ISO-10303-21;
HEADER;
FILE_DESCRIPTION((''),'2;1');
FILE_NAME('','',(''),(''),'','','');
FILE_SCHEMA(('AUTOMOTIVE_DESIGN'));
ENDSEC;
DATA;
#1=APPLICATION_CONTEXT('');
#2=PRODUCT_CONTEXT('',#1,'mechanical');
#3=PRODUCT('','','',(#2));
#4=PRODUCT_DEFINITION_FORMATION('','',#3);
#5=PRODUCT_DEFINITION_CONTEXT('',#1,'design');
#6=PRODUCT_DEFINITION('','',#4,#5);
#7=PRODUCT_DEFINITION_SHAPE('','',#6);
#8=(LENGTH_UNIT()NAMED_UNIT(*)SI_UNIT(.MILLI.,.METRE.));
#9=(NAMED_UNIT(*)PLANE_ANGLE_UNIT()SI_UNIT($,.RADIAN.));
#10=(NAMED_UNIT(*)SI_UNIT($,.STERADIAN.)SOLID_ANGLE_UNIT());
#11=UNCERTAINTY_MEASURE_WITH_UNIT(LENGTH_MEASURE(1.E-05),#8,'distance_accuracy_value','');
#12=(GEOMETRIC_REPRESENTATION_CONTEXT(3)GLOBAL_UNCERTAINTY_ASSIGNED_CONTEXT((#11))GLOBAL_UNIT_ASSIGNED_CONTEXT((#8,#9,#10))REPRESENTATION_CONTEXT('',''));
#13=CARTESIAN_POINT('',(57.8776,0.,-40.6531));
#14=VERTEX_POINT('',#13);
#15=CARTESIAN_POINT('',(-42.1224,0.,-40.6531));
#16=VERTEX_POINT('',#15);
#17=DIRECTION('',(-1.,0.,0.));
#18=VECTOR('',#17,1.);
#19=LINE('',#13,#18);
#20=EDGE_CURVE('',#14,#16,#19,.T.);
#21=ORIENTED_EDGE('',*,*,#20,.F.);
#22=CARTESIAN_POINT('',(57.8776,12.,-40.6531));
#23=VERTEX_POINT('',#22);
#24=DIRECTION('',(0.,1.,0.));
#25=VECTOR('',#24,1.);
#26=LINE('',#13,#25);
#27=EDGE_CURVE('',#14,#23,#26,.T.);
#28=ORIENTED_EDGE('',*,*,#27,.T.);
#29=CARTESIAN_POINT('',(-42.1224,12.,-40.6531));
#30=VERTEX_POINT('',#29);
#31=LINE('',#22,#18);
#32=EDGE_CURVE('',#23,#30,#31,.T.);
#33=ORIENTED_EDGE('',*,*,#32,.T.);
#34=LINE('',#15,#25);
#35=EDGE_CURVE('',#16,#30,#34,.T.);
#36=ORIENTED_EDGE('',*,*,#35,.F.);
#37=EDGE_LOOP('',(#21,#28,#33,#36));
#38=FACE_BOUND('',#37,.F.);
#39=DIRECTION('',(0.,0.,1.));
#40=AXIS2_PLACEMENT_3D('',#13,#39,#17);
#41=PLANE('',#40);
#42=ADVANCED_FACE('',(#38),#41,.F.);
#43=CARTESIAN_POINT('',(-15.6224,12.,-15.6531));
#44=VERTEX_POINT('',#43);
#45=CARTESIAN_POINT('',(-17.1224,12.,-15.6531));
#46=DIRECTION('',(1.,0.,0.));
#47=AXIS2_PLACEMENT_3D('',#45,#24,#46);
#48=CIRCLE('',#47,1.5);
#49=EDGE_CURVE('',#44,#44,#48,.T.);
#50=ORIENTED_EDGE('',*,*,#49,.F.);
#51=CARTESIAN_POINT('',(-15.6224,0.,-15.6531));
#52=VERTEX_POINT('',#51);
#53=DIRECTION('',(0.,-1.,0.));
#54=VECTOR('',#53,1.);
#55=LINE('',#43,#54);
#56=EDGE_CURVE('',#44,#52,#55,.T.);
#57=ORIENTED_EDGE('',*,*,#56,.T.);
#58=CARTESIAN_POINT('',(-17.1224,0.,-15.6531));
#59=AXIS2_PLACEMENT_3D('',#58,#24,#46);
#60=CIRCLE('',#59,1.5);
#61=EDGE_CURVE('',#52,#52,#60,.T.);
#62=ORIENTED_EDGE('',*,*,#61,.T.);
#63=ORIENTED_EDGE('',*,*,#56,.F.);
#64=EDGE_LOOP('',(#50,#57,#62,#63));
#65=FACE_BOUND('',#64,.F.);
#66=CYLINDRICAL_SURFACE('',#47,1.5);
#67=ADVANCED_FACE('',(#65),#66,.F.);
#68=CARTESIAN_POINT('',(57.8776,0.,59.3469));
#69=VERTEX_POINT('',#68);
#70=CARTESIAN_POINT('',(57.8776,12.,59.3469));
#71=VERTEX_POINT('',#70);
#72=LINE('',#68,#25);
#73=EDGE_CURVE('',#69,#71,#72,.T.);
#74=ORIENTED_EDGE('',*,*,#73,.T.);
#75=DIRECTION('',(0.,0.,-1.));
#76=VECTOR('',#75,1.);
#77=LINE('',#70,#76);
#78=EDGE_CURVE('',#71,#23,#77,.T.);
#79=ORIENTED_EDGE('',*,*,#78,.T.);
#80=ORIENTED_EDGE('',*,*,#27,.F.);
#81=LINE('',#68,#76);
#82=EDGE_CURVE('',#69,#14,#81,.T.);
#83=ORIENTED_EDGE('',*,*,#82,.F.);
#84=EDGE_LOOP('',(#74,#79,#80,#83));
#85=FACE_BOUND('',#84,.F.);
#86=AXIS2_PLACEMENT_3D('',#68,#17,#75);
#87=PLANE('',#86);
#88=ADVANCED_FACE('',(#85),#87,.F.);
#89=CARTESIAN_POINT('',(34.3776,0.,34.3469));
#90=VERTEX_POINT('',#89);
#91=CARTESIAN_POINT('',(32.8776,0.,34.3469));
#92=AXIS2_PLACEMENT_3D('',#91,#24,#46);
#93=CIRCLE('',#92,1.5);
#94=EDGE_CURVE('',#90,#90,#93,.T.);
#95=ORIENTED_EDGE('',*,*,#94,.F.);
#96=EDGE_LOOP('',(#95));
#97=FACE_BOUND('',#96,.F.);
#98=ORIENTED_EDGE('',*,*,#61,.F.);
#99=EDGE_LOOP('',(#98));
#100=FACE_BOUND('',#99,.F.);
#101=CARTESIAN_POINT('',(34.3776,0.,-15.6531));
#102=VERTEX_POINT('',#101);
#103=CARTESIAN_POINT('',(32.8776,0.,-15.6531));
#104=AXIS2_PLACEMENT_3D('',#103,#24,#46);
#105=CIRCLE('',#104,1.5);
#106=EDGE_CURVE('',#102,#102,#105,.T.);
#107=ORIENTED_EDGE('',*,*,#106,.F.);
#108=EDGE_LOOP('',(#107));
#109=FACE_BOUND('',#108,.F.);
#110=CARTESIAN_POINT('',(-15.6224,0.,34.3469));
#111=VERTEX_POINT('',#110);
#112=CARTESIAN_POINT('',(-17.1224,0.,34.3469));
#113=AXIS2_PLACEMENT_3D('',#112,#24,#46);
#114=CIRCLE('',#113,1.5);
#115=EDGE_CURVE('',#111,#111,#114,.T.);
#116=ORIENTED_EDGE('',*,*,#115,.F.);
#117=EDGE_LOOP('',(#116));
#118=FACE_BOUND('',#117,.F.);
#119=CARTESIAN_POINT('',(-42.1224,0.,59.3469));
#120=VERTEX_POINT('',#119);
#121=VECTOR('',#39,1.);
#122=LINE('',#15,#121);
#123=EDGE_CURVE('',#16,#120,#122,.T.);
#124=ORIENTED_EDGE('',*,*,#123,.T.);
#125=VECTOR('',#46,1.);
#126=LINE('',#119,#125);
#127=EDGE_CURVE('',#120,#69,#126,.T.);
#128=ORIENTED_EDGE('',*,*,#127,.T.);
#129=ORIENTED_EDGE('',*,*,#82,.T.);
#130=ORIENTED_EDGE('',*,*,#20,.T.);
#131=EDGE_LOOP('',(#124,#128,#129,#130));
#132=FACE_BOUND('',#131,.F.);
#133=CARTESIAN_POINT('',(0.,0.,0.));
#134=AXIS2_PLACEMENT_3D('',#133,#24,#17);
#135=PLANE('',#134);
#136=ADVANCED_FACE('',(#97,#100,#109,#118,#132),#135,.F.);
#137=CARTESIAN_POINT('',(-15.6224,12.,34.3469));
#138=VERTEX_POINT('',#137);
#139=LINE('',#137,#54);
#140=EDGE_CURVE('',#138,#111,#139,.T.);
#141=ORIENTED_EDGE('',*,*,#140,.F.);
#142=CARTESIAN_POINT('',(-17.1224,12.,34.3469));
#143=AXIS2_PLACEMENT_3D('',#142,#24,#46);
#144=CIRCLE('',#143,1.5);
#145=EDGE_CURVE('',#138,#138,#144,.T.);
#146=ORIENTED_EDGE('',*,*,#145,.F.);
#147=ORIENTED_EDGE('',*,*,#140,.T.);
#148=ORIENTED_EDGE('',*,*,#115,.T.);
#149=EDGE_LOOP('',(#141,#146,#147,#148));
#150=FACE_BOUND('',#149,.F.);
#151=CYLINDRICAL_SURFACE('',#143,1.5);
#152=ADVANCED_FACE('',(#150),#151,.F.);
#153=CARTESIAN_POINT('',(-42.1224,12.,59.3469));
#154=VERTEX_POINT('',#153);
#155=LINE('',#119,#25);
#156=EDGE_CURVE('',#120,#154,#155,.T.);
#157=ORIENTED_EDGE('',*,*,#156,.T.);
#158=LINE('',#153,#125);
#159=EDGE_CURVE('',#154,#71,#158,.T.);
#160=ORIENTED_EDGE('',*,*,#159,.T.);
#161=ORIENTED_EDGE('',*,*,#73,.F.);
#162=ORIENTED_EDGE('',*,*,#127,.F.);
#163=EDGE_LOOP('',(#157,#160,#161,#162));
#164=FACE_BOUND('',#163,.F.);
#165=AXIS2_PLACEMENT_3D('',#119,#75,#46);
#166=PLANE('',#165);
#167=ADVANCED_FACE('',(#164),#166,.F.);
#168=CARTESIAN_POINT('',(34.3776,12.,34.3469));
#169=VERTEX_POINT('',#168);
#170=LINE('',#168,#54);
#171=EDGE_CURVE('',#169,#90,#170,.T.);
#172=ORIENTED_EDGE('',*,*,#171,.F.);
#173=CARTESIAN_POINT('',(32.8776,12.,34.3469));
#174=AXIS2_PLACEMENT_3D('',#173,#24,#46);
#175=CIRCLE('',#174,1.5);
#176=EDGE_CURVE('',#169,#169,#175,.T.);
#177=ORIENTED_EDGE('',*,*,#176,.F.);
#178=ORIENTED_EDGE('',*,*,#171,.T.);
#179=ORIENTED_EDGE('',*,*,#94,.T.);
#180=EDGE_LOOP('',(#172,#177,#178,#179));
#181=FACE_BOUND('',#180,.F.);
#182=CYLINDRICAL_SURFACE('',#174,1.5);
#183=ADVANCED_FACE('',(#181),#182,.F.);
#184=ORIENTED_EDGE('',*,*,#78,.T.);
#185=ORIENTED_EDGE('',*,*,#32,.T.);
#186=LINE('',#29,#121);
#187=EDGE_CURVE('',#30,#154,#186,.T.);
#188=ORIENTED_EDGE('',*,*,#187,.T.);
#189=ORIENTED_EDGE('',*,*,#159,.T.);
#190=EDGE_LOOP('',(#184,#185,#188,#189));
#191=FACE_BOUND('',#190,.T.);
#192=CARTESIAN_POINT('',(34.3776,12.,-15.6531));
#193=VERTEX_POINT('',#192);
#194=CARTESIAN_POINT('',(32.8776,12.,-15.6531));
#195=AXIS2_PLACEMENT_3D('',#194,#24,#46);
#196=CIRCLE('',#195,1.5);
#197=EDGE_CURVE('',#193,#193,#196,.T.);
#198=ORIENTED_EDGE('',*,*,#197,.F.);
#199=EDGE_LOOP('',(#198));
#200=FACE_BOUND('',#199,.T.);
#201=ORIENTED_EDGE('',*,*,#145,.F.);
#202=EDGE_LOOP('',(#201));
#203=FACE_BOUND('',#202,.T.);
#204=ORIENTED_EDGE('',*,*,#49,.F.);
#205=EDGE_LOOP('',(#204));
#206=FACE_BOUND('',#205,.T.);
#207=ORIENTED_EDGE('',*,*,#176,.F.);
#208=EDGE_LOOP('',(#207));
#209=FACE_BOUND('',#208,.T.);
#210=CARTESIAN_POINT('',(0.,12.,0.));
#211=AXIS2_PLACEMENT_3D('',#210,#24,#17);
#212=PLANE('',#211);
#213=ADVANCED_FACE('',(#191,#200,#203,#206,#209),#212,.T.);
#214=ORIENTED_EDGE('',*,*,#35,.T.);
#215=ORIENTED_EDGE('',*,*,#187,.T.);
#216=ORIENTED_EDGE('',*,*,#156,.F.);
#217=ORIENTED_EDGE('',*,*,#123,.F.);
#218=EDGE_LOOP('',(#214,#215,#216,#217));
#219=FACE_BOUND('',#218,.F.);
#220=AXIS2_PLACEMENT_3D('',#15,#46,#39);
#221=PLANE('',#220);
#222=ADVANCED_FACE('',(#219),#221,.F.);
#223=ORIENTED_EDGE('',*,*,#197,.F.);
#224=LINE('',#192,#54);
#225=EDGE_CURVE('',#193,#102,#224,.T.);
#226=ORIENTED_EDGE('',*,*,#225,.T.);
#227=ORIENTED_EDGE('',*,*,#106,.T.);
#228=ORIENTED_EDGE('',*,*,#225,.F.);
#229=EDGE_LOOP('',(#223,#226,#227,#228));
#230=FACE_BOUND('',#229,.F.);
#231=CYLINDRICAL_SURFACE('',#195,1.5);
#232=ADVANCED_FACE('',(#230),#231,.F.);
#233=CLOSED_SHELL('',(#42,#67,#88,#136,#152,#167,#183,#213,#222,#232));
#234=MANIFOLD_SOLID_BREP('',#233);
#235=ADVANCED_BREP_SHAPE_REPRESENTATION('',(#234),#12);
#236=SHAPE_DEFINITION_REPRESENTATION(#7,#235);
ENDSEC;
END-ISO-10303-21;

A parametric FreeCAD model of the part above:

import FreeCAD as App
import Part
import Sketcher
from FreeCAD import Vector
Q = App.Units.Quantity


def add_polygon(sketch, points):
    """Adds a closed chain of lines whose ends are joined by coincident constraints."""
    first, n = sketch.GeometryCount, len(points)
    for a, b in zip(points, points[1:] + points[:1]):
        sketch.addGeometry(Part.LineSegment(App.Vector(*a, 0), App.Vector(*b, 0)), False)
    for i in range(n):
        sketch.addConstraint(Sketcher.Constraint("Coincident", first + i, 2, first + (i + 1) % n, 1))

doc = App.newDocument("Part")
body = doc.addObject("PartDesign::Body", "Body")

# Sketch on XZ plane
sketch1 = body.newObject("Sketcher::SketchObject", "Sketch")
sketch1.AttachmentSupport = (doc.getObject("XZ_Plane"), [""])
sketch1.MapMode = "FlatFace"
add_polygon(sketch1, [(-42, -41), (-42, 59), (58, 59), (58, -41)])  # lines 0-3
sketch1.addConstraint([
    Sketcher.Constraint("Vertical", 0),
    Sketcher.Constraint("Horizontal", 1),
    Sketcher.Constraint("Vertical", 2),
    Sketcher.Constraint("Horizontal", 3),
    Sketcher.Constraint("Equal", 3, 0),
    Sketcher.Constraint("DistanceX", 1, 1, 1, 2, Q("100 mm")),
    Sketcher.Constraint("DistanceY", -1, 1, 0, 2, Q("59.347 mm")),
    Sketcher.Constraint("DistanceX", 0, 2, -1, 1, Q("42.1224 mm")),
])
pad1 = body.newObject("PartDesign::Pad", "Pad")
pad1.Profile = sketch1
pad1.Length = 12
pad1.Reversed = True

# Sketch on XZ plane
sketch2 = body.newObject("Sketcher::SketchObject", "Sketch001")
sketch2.AttachmentSupport = (doc.getObject("XZ_Plane"), [""])
sketch2.MapMode = "FlatFace"
sketch2.AttachmentOffset = App.Placement(Vector(0, 0, -12), App.Rotation())
sketch2.addGeometry([
    Part.Circle(Vector(-17.1, 34.3, 0), Vector(0, 0, 1), 1.5),
    Part.Circle(Vector(32.9, 34.3, 0), Vector(0, 0, 1), 1.5),
    Part.Circle(Vector(32.9, -15.7, 0), Vector(0, 0, 1), 1.5),
    Part.Circle(Vector(-17.1, -15.7, 0), Vector(0, 0, 1), 1.5),
], False)
sketch2.addConstraint([
    Sketcher.Constraint("Equal", 0, 1),
    Sketcher.Constraint("Equal", 1, 2),
    Sketcher.Constraint("Equal", 2, 3),
    Sketcher.Constraint("Horizontal", 0, 3, 1, 3),
    Sketcher.Constraint("Horizontal", 2, 3, 3, 3),
    Sketcher.Constraint("Vertical", 1, 3, 2, 3),
    Sketcher.Constraint("Vertical", 0, 3, 3, 3),
    Sketcher.Constraint("Diameter", 0, Q("3 mm")),
    Sketcher.Constraint("DistanceX", 0, 3, 1, 3, Q("50 mm")),
    Sketcher.Constraint("DistanceY", 2, 3, 1, 3, Q("50 mm")),
    Sketcher.Constraint("DistanceY", -1, 1, 0, 3, Q("34.347 mm")),
    Sketcher.Constraint("DistanceX", 0, 3, -1, 1, Q("17.1224 mm")),
])
pocket1 = body.newObject("PartDesign::Pocket", "Pocket")
pocket1.Profile = sketch2
pocket1.Length = 12
pocket1.Reversed = True

doc.recompute()
